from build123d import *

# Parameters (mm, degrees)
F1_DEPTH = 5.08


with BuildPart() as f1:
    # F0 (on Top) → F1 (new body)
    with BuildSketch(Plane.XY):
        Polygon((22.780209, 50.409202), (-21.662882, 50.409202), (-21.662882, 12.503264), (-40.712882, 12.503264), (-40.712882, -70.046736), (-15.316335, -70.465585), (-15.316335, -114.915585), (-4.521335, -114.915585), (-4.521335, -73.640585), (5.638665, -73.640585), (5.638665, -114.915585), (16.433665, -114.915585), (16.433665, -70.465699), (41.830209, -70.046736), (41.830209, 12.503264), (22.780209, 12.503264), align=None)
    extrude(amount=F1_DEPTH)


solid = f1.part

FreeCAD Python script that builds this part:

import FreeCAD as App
import Part
import Sketcher
from FreeCAD import Vector
Q = App.Units.Quantity


def add_polygon(sketch, points):
    """Adds a closed chain of lines whose ends are joined by coincident constraints."""
    first, n = sketch.GeometryCount, len(points)
    for a, b in zip(points, points[1:] + points[:1]):
        sketch.addGeometry(Part.LineSegment(App.Vector(*a, 0), App.Vector(*b, 0)), False)
    for i in range(n):
        sketch.addConstraint(Sketcher.Constraint("Coincident", first + i, 2, first + (i + 1) % n, 1))

doc = App.newDocument("Part")
body = doc.addObject("PartDesign::Body", "Body")

# Sketch on XY plane
sketch1 = doc.addObject("Sketcher::SketchObject", "Sketch")
body.addObject(sketch1)
sketch1.AttachmentSupport = (doc.XY_Plane, [""])
sketch1.MapMode = "FlatFace"
add_polygon(sketch1, [(22.780209, 50.409202), (-21.662882, 50.409202), (-21.662882, 12.503264), (-40.712882, 12.503264), (-40.712882, -70.046736), (-15.316335, -70.465585), (-15.316335, -114.915585), (-4.521335, -114.915585), (-4.521335, -73.640585), (5.638665, -73.640585), (5.638665, -114.915585), (16.433665, -114.915585), (16.433665, -70.465699), (41.830209, -70.046736), (41.830209, 12.503264), (22.780209, 12.503264)])  # lines 0-15
sketch1.addConstraint([
    Sketcher.Constraint("Horizontal", 0),
    Sketcher.Constraint("Vertical", 1),
    Sketcher.Constraint("Horizontal", 2),
    Sketcher.Constraint("Vertical", 3),
    Sketcher.Constraint("Vertical", 5),
    Sketcher.Constraint("Horizontal", 6),
    Sketcher.Constraint("Vertical", 7),
    Sketcher.Constraint("Horizontal", 8),
    Sketcher.Constraint("Vertical", 9),
    Sketcher.Constraint("Horizontal", 10),
    Sketcher.Constraint("Vertical", 11),
    Sketcher.Constraint("Vertical", 13),
    Sketcher.Constraint("Horizontal", 14),
    Sketcher.Constraint("Vertical", 15),
    Sketcher.Constraint("Horizontal", 6, 2, 9, 2),
    Sketcher.Constraint("Horizontal", 3, 2, 12, 2),
    Sketcher.Constraint("Horizontal", 2, 2, 13, 2),
    Sketcher.Constraint("Equal", 6, 10),
    Sketcher.Constraint("Equal", 2, 14),
    Sketcher.Constraint("Equal", 4, 12),
    Sketcher.Constraint("Distance", 4, Q("1 in")),
    Sketcher.Constraint("DistanceX", 8, 1, 8, 2, Q("0.4 in")),
    Sketcher.Constraint("DistanceX", 2, 2, 2, 1, Q("0.75 in")),
    Sketcher.Constraint("DistanceY", 3, 2, 3, 1, Q("3.25 in")),
    Sketcher.Constraint("DistanceY", 5, 2, 5, 1, Q("1.75 in")),
    Sketcher.Constraint("DistanceX", 6, 1, 6, 2, Q("0.425 in")),
    Sketcher.Constraint("DistanceY", 7, 1, 7, 2, Q("1.625 in")),
    Sketcher.Constraint("DistanceX", 0, 2, 0, 1, Q("44.443091 mm")),
    Sketcher.Constraint("DistanceY", 11, 2, -1, 1, Q("70.465699 mm")),
    Sketcher.Constraint("DistanceY", 1, 2, 1, 1, Q("37.905938 mm")),
    Sketcher.Constraint("DistanceY", 11, 1, 11, 2, Q("44.449886 mm")),
    Sketcher.Constraint("DistanceX", 0, 2, -1, 1, Q("21.662882 mm")),
])
pad1 = doc.addObject("PartDesign::Pad", "Pad")
body.addObject(pad1)
pad1.Profile = sketch1
pad1.Length = Q("0.2 in")

doc.recompute()
